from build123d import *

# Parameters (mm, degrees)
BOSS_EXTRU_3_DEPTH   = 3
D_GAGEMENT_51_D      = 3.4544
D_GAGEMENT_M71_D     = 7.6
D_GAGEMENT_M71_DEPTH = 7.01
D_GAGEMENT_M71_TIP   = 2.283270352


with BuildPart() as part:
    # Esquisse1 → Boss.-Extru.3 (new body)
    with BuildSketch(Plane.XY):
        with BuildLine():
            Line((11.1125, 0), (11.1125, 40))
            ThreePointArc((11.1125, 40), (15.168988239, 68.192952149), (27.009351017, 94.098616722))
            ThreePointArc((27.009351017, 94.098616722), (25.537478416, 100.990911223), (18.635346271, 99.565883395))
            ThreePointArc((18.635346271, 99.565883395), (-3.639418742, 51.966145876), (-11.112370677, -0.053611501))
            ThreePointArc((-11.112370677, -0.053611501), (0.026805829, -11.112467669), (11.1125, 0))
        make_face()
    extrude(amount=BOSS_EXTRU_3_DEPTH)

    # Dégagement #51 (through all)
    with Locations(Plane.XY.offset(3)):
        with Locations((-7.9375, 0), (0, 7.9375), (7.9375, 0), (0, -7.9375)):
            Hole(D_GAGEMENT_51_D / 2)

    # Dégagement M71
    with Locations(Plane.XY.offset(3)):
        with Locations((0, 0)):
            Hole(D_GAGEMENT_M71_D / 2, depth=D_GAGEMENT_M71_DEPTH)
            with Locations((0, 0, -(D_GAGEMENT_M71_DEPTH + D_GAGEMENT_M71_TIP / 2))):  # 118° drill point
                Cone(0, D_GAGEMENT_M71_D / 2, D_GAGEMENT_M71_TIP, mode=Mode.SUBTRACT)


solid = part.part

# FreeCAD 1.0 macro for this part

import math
import FreeCAD as App
import Part
import Sketcher
from FreeCAD import Vector
Q = App.Units.Quantity

doc = App.newDocument("Part")
body = doc.addObject("PartDesign::Body", "Body")

# Sketch on XY plane
sketch1 = body.newObject("Sketcher::SketchObject", "Sketch")
sketch1.AttachmentSupport = (doc.getObject("XY_Plane"), [""])
sketch1.MapMode = "FlatFace"
sketch1.addGeometry([
    Part.LineSegment(Vector(11, 0, 0), Vector(11, 40, 0)),  # 0
    Part.ArcOfCircle(Part.Circle(Vector(111, 40, 0), Vector(0, 0, 1), 100), math.radians(147), math.radians(180)),  # 1
    Part.ArcOfCircle(Part.Circle(Vector(23, 97, 0), Vector(0, 0, 1), 5), math.radians(-33), math.radians(146)),  # 2
    Part.ArcOfCircle(Part.Circle(Vector(168, 1, 0), Vector(0, 0, 1), 179), math.radians(146), math.radians(180)),  # 3
    Part.ArcOfCircle(Part.Circle(Vector(0, 0, 0), Vector(0, 0, 1), 11), math.radians(-180), math.radians(0)),  # 4
], False)
sketch1.addConstraint([
    Sketcher.Constraint("Tangent", 0, 2, 1, 2),
    Sketcher.Constraint("Tangent", 1, 1, 2, 1),
    Sketcher.Constraint("Tangent", 2, 2, 3, 1),
    Sketcher.Constraint("Tangent", 3, 2, 4, 1),
    Sketcher.Constraint("Tangent", 4, 2, 0, 1),
    Sketcher.Constraint("Vertical", 0),
    Sketcher.Constraint("Coincident", 4, 3, -1, 1),
    Sketcher.Constraint("Radius", 1, Q("100 mm")),
    Sketcher.Constraint("DistanceY", 0, 1, 0, 2, Q("40 mm")),
    Sketcher.Constraint("Radius", 4, Q("11.1125 mm")),
    Sketcher.Constraint("Radius", 2, Q("5.000489 mm")),
    Sketcher.Constraint("Radius", 3, Q("178.790827 mm")),
    Sketcher.Constraint("DistanceX", -1, 1, 1, 1, Q("27.009351 mm")),
])
pad1 = body.newObject("PartDesign::Pad", "Pad")
pad1.Profile = sketch1
pad1.Length = 3

# Sketch on XY plane
sketch2 = body.newObject("Sketcher::SketchObject", "Sketch001")
sketch2.AttachmentSupport = (doc.getObject("XY_Plane"), [""])
sketch2.MapMode = "FlatFace"
sketch2.AttachmentOffset = App.Placement(Vector(0, 0, 3), App.Rotation())
sketch2.addGeometry([
    Part.Circle(Vector(-7.9, 0, 0), Vector(0, 0, 1), 1.7),
    Part.Circle(Vector(0, 7.9, 0), Vector(0, 0, 1), 1.7),
    Part.Circle(Vector(7.9, 0, 0), Vector(0, 0, 1), 1.7),
    Part.Circle(Vector(0, -7.9, 0), Vector(0, 0, 1), 1.7),
], False)
sketch2.addConstraint([
    Sketcher.Constraint("Equal", 0, 1),
    Sketcher.Constraint("Equal", 1, 2),
    Sketcher.Constraint("Equal", 2, 3),
    Sketcher.Constraint("Symmetric", 0, 3, 2, 3, -1, 1),
    Sketcher.Constraint("Symmetric", 1, 3, 3, 3, -1, 1),
    Sketcher.Constraint("PointOnObject", 0, 3, -1),
    Sketcher.Constraint("PointOnObject", 1, 3, -2),
    Sketcher.Constraint("Diameter", 0, Q("3.4544 mm")),
    Sketcher.Constraint("DistanceX", 0, 3, 2, 3, Q("15.875 mm")),
    Sketcher.Constraint("DistanceY", 3, 3, 1, 3, Q("15.875 mm")),
])
doc.recompute()
hole = body.newObject("PartDesign::Hole", "Hole")
hole.Profile = sketch2
hole.ThreadType = "None"
hole.Diameter = 3.4544
hole.DepthType = "ThroughAll"

# Sketch on XY plane
sketch3 = body.newObject("Sketcher::SketchObject", "Sketch002")
sketch3.AttachmentSupport = (doc.getObject("XY_Plane"), [""])
sketch3.MapMode = "FlatFace"
sketch3.AttachmentOffset = App.Placement(Vector(0, 0, 3), App.Rotation())
sketch3.addGeometry(Part.Circle(Vector(0, 0, 0), Vector(0, 0, 1), 3.8), False)
sketch3.addConstraint([
    Sketcher.Constraint("Coincident", 0, 3, -1, 1),
    Sketcher.Constraint("Diameter", 0, Q("7.6 mm")),
])
doc.recompute()
hole2 = body.newObject("PartDesign::Hole", "Hole001")
hole2.Profile = sketch3
hole2.ThreadType = "None"
hole2.Diameter = 7.6
hole2.DepthType = "Dimension"
hole2.Depth = 7.01
hole2.DrillPoint = "Angled"
hole2.DrillPointAngle = 118

doc.recompute()
